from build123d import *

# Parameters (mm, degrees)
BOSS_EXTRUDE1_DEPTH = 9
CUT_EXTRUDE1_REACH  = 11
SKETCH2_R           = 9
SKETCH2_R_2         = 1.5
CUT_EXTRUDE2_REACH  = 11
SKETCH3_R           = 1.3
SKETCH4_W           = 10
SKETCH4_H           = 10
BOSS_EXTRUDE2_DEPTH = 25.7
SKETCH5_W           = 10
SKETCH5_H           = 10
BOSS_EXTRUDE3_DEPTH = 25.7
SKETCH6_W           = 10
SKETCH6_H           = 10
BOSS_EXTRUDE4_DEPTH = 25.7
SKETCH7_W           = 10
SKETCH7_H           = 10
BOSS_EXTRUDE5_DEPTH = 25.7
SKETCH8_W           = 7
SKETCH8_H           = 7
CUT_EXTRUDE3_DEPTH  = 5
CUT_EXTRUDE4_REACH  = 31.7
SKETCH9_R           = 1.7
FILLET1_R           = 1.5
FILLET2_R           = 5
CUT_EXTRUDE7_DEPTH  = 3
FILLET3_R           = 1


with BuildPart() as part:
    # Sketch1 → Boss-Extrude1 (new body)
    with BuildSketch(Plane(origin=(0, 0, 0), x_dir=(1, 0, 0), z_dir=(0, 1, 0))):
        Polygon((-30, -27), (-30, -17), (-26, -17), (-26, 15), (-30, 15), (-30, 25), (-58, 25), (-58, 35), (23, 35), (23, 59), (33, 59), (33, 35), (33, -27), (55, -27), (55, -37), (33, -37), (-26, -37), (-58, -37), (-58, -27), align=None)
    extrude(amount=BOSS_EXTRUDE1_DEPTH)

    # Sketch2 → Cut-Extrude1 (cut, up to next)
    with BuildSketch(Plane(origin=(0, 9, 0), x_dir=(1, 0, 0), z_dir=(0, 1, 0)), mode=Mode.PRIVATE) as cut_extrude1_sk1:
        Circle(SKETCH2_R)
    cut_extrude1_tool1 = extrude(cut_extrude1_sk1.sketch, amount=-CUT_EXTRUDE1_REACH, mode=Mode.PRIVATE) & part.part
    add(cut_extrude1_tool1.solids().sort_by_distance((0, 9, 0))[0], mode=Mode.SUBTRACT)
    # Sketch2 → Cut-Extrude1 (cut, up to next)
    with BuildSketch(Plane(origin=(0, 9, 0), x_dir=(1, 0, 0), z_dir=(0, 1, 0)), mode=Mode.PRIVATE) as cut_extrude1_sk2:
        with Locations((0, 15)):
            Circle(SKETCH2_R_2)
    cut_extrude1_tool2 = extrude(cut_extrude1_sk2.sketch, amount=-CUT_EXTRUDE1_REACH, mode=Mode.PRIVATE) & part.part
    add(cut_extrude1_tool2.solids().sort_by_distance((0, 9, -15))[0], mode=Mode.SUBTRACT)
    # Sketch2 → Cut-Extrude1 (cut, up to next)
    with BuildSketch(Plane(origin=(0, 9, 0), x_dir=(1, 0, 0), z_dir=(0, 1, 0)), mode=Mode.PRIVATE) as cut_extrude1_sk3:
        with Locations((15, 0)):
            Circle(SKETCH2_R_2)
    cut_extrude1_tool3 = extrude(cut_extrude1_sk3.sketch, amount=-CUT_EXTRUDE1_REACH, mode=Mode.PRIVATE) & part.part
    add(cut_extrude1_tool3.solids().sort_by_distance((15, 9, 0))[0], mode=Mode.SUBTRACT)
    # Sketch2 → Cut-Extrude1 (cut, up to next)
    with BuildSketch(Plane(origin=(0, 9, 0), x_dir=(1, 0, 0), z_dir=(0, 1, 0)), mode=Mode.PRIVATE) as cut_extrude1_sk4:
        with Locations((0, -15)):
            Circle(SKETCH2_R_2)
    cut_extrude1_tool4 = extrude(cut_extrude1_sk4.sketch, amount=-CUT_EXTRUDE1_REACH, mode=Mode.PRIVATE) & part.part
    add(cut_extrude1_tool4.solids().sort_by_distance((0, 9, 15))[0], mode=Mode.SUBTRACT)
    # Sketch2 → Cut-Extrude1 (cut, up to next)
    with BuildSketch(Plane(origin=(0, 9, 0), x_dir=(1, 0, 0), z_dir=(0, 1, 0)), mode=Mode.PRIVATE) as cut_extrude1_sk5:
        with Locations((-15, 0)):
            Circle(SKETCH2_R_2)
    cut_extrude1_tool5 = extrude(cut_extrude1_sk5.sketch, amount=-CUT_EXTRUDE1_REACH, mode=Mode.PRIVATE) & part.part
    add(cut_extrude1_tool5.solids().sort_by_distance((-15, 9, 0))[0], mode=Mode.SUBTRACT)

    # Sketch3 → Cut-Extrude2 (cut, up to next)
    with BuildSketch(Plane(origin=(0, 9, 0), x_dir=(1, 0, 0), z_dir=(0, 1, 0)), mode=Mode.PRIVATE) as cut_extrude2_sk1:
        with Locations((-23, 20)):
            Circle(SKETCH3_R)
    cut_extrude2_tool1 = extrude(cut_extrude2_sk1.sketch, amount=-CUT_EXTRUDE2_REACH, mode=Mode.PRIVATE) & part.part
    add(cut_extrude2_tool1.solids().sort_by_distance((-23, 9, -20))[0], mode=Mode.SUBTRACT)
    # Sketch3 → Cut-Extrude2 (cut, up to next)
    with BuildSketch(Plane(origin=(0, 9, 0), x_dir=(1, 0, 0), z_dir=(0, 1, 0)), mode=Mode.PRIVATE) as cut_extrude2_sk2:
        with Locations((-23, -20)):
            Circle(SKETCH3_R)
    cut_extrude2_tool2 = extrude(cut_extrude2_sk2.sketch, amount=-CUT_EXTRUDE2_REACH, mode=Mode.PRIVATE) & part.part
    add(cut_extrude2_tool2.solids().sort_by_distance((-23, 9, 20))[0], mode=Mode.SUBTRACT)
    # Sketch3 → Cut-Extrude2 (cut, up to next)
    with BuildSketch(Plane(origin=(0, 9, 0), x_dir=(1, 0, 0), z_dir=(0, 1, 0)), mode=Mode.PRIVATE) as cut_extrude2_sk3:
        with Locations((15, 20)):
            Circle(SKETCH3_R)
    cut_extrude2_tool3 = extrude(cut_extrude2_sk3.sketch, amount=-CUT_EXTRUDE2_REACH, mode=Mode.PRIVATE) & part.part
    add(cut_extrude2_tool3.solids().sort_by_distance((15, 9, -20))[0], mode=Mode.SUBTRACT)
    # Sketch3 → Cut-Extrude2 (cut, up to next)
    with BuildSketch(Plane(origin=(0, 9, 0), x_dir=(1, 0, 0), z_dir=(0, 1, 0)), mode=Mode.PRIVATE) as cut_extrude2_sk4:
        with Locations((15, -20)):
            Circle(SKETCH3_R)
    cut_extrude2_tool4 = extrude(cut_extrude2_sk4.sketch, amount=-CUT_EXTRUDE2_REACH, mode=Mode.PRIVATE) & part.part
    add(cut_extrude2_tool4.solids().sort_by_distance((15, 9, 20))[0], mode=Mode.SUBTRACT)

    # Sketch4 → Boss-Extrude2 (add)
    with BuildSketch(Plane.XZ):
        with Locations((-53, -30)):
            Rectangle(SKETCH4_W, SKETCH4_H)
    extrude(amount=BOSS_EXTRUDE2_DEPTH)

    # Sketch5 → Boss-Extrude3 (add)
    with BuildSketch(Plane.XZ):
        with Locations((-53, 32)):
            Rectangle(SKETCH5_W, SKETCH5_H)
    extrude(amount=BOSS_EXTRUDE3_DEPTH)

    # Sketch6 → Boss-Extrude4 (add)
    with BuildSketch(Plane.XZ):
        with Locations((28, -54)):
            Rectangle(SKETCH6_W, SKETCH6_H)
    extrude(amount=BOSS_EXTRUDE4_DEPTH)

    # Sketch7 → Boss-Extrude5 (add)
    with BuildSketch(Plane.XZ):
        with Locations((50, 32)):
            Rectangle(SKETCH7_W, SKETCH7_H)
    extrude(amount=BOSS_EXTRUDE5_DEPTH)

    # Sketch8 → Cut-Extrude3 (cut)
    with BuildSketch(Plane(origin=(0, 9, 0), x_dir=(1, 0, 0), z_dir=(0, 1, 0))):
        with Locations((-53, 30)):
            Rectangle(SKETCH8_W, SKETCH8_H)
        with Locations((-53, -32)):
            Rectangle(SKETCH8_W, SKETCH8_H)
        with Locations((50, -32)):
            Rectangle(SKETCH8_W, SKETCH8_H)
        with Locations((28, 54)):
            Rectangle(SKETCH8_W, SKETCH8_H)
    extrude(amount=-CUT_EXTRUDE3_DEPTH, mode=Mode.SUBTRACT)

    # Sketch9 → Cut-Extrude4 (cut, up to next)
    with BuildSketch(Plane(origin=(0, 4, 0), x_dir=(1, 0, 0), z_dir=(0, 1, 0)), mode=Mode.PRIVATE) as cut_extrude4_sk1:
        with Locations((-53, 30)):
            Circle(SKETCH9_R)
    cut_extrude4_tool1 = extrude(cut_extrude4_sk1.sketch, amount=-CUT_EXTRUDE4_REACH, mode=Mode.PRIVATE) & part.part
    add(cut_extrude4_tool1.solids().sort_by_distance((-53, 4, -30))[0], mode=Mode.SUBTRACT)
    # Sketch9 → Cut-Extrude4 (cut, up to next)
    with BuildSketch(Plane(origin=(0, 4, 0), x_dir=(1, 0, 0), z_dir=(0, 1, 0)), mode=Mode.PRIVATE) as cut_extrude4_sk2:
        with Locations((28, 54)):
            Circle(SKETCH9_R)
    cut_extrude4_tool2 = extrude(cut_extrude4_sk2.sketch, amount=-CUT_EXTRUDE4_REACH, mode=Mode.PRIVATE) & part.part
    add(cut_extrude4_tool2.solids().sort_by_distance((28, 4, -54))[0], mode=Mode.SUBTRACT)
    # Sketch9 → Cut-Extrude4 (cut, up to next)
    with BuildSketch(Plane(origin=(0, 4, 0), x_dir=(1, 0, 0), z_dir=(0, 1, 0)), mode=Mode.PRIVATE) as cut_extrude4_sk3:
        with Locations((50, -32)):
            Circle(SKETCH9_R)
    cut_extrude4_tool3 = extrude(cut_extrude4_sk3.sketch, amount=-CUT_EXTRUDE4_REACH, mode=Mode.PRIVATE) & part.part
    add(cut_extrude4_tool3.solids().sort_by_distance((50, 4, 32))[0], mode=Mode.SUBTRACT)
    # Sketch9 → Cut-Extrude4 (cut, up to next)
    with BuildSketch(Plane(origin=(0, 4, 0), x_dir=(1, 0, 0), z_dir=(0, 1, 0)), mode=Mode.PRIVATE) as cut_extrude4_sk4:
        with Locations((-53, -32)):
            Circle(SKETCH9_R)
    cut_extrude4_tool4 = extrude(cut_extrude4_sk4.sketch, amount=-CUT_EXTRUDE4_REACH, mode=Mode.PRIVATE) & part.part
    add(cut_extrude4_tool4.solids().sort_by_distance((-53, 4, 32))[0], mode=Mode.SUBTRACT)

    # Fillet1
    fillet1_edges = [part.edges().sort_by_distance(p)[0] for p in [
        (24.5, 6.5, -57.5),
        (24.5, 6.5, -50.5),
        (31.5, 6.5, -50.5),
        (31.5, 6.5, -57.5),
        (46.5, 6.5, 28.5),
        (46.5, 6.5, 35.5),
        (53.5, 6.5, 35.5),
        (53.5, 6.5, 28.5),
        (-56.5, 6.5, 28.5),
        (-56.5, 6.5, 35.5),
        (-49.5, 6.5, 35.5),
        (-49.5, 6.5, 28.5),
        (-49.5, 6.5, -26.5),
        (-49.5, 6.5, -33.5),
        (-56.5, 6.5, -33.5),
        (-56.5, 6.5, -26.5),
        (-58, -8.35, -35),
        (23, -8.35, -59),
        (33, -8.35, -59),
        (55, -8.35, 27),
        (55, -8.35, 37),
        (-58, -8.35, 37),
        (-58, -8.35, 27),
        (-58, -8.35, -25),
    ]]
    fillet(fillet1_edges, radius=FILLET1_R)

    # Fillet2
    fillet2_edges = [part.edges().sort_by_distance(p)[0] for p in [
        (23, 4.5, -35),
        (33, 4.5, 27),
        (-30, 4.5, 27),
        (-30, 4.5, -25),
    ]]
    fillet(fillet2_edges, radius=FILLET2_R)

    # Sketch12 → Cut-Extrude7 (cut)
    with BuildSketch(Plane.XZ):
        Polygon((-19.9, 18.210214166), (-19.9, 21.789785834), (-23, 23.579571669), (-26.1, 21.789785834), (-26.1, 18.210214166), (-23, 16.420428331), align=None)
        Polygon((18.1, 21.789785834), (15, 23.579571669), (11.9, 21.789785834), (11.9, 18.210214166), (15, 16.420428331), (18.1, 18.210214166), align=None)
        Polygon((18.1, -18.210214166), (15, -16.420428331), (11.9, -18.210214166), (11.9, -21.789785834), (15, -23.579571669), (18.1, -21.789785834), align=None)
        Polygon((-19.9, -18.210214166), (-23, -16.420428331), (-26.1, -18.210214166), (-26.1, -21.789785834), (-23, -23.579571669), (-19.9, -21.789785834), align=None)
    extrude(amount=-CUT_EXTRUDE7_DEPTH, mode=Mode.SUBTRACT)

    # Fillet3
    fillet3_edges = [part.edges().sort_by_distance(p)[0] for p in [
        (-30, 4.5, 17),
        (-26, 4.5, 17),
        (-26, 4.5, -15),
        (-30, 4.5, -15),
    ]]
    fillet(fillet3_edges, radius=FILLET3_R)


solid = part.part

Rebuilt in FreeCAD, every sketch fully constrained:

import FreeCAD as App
import Part
import Sketcher
from FreeCAD import Vector
Q = App.Units.Quantity


def edges_at(feature, points):
    """Names of the edges that pass closest to the given points."""
    edges = feature.Shape.Edges
    near = lambda p: min(range(len(edges)), key=lambda i: edges[i].distToShape(Part.Vertex(*p))[0])
    return sorted({f"Edge{near(p) + 1}" for p in points})


def add_polygon(sketch, points):
    """Adds a closed chain of lines whose ends are joined by coincident constraints."""
    first, n = sketch.GeometryCount, len(points)
    for a, b in zip(points, points[1:] + points[:1]):
        sketch.addGeometry(Part.LineSegment(App.Vector(*a, 0), App.Vector(*b, 0)), False)
    for i in range(n):
        sketch.addConstraint(Sketcher.Constraint("Coincident", first + i, 2, first + (i + 1) % n, 1))

doc = App.newDocument("Part")
body = doc.addObject("PartDesign::Body", "Body")

sketch1 = body.newObject("Sketcher::SketchObject", "Sketch")
sketch1.AttachmentSupport = (doc.getObject("XZ_Plane"), [""])
sketch1.MapMode = "FlatFace"
add_polygon(sketch1, [(-30, 17), (-30, 27), (-58, 27), (-58, 37), (55, 37), (55, 27), (33, 27), (33, -59), (23, -59), (23, -35), (-58, -35), (-58, -25), (-30, -25), (-30, -15), (-26, -15), (-26, 17)])
sketch1.addConstraint([
    Sketcher.Constraint("Vertical", 0),
    Sketcher.Constraint("Horizontal", 1),
    Sketcher.Constraint("Vertical", 2),
    Sketcher.Constraint("Horizontal", 3),
    Sketcher.Constraint("Vertical", 4),
    Sketcher.Constraint("Horizontal", 5),
    Sketcher.Constraint("Vertical", 6),
    Sketcher.Constraint("Horizontal", 7),
    Sketcher.Constraint("Vertical", 8),
    Sketcher.Constraint("Horizontal", 9),
    Sketcher.Constraint("Vertical", 10),
    Sketcher.Constraint("Horizontal", 11),
    Sketcher.Constraint("Vertical", 12),
    Sketcher.Constraint("Horizontal", 13),
    Sketcher.Constraint("Vertical", 14),
    Sketcher.Constraint("Horizontal", 15),
    Sketcher.Constraint("Horizontal", 1, 2, 4, 2),
    Sketcher.Constraint("Vertical", 2, 2, 9, 2),
    Sketcher.Constraint("Vertical", 0, 2, 11, 2),
    Sketcher.Constraint("Equal", 7, 0),
    Sketcher.Constraint("Equal", 0, 2),
    Sketcher.Constraint("Equal", 4, 10),
    Sketcher.Constraint("Equal", 10, 12),
    Sketcher.Constraint("DistanceX", 1, 2, 1, 1, Q("28 mm")),
    Sketcher.Constraint("DistanceX", 3, 1, 3, 2, Q("113 mm")),
    Sketcher.Constraint("DistanceX", 5, 2, 5, 1, Q("22 mm")),
    Sketcher.Constraint("DistanceX", 7, 2, 7, 1, Q("10 mm")),
    Sketcher.Constraint("DistanceX", 13, 1, 13, 2, Q("4 mm")),
    Sketcher.Constraint("DistanceY", 6, 2, 6, 1, Q("86 mm")),
    Sketcher.Constraint("DistanceY", 8, 1, 8, 2, Q("24 mm")),
    Sketcher.Constraint("DistanceX", 0, 2, -1, 1, Q("30 mm")),
    Sketcher.Constraint("DistanceY", -1, 1, 0, 2, Q("27 mm")),
])
pad1 = body.newObject("PartDesign::Pad", "Pad")
pad1.Profile = sketch1
pad1.Length = 9
pad1.Reversed = True

sketch2 = body.newObject("Sketcher::SketchObject", "Sketch001")
sketch2.AttachmentSupport = (doc.getObject("XZ_Plane"), [""])
sketch2.MapMode = "FlatFace"
sketch2.AttachmentOffset = App.Placement(Vector(0, 0, -9), App.Rotation())
sketch2.addGeometry(Part.Circle(Vector(0, 0, 0), Vector(0, 0, 1), 9), False)
sketch2.addConstraint([
    Sketcher.Constraint("Coincident", 0, 3, -1, 1),
    Sketcher.Constraint("Diameter", 0, Q("18 mm")),
])
pocket1 = body.newObject("PartDesign::Pocket", "Pocket")
pocket1.Profile = sketch2
pocket1.Type = "UpToFirst"
pocket1.Reversed = True

sketch3 = body.newObject("Sketcher::SketchObject", "Sketch002")
sketch3.AttachmentSupport = (doc.getObject("XZ_Plane"), [""])
sketch3.MapMode = "FlatFace"
sketch3.AttachmentOffset = App.Placement(Vector(0, 0, -9), App.Rotation())
sketch3.addGeometry(Part.Circle(Vector(0, -15, 0), Vector(0, 0, 1), 1.5), False)
sketch3.addConstraint([
    Sketcher.Constraint("PointOnObject", 0, 3, -2),
    Sketcher.Constraint("Diameter", 0, Q("3 mm")),
    Sketcher.Constraint("DistanceY", 0, 3, -1, 1, Q("15 mm")),
])
pocket2 = body.newObject("PartDesign::Pocket", "Pocket001")
pocket2.Profile = sketch3
pocket2.Type = "UpToFirst"
pocket2.Reversed = True

sketch4 = body.newObject("Sketcher::SketchObject", "Sketch003")
sketch4.AttachmentSupport = (doc.getObject("XZ_Plane"), [""])
sketch4.MapMode = "FlatFace"
sketch4.AttachmentOffset = App.Placement(Vector(0, 0, -9), App.Rotation())
sketch4.addGeometry(Part.Circle(Vector(15, 0, 0), Vector(0, 0, 1), 1.5), False)
sketch4.addConstraint([
    Sketcher.Constraint("PointOnObject", 0, 3, -1),
    Sketcher.Constraint("Diameter", 0, Q("3 mm")),
    Sketcher.Constraint("DistanceX", -1, 1, 0, 3, Q("15 mm")),
])
pocket3 = body.newObject("PartDesign::Pocket", "Pocket002")
pocket3.Profile = sketch4
pocket3.Type = "UpToFirst"
pocket3.Reversed = True

sketch5 = body.newObject("Sketcher::SketchObject", "Sketch004")
sketch5.AttachmentSupport = (doc.getObject("XZ_Plane"), [""])
sketch5.MapMode = "FlatFace"
sketch5.AttachmentOffset = App.Placement(Vector(0, 0, -9), App.Rotation())
sketch5.addGeometry(Part.Circle(Vector(0, 15, 0), Vector(0, 0, 1), 1.5), False)
sketch5.addConstraint([
    Sketcher.Constraint("PointOnObject", 0, 3, -2),
    Sketcher.Constraint("Diameter", 0, Q("3 mm")),
    Sketcher.Constraint("DistanceY", -1, 1, 0, 3, Q("15 mm")),
])
pocket4 = body.newObject("PartDesign::Pocket", "Pocket003")
pocket4.Profile = sketch5
pocket4.Type = "UpToFirst"
pocket4.Reversed = True

sketch6 = body.newObject("Sketcher::SketchObject", "Sketch005")
sketch6.AttachmentSupport = (doc.getObject("XZ_Plane"), [""])
sketch6.MapMode = "FlatFace"
sketch6.AttachmentOffset = App.Placement(Vector(0, 0, -9), App.Rotation())
sketch6.addGeometry(Part.Circle(Vector(-15, 0, 0), Vector(0, 0, 1), 1.5), False)
sketch6.addConstraint([
    Sketcher.Constraint("PointOnObject", 0, 3, -1),
    Sketcher.Constraint("Diameter", 0, Q("3 mm")),
    Sketcher.Constraint("DistanceX", 0, 3, -1, 1, Q("15 mm")),
])
pocket5 = body.newObject("PartDesign::Pocket", "Pocket004")
pocket5.Profile = sketch6
pocket5.Type = "UpToFirst"
pocket5.Reversed = True

sketch7 = body.newObject("Sketcher::SketchObject", "Sketch006")
sketch7.AttachmentSupport = (doc.getObject("XZ_Plane"), [""])
sketch7.MapMode = "FlatFace"
sketch7.AttachmentOffset = App.Placement(Vector(0, 0, -9), App.Rotation())
sketch7.addGeometry(Part.Circle(Vector(-23, -20, 0), Vector(0, 0, 1), 1.3), False)
sketch7.addConstraint([
    Sketcher.Constraint("Diameter", 0, Q("2.6 mm")),
    Sketcher.Constraint("DistanceX", 0, 3, -1, 1, Q("23 mm")),
    Sketcher.Constraint("DistanceY", 0, 3, -1, 1, Q("20 mm")),
])
pocket6 = body.newObject("PartDesign::Pocket", "Pocket005")
pocket6.Profile = sketch7
pocket6.Type = "UpToFirst"
pocket6.Reversed = True

sketch8 = body.newObject("Sketcher::SketchObject", "Sketch007")
sketch8.AttachmentSupport = (doc.getObject("XZ_Plane"), [""])
sketch8.MapMode = "FlatFace"
sketch8.AttachmentOffset = App.Placement(Vector(0, 0, -9), App.Rotation())
sketch8.addGeometry(Part.Circle(Vector(-23, 20, 0), Vector(0, 0, 1), 1.3), False)
sketch8.addConstraint([
    Sketcher.Constraint("Diameter", 0, Q("2.6 mm")),
    Sketcher.Constraint("DistanceX", 0, 3, -1, 1, Q("23 mm")),
    Sketcher.Constraint("DistanceY", -1, 1, 0, 3, Q("20 mm")),
])
pocket7 = body.newObject("PartDesign::Pocket", "Pocket006")
pocket7.Profile = sketch8
pocket7.Type = "UpToFirst"
pocket7.Reversed = True

sketch9 = body.newObject("Sketcher::SketchObject", "Sketch008")
sketch9.AttachmentSupport = (doc.getObject("XZ_Plane"), [""])
sketch9.MapMode = "FlatFace"
sketch9.AttachmentOffset = App.Placement(Vector(0, 0, -9), App.Rotation())
sketch9.addGeometry(Part.Circle(Vector(15, -20, 0), Vector(0, 0, 1), 1.3), False)
sketch9.addConstraint([
    Sketcher.Constraint("Diameter", 0, Q("2.6 mm")),
    Sketcher.Constraint("DistanceX", -1, 1, 0, 3, Q("15 mm")),
    Sketcher.Constraint("DistanceY", 0, 3, -1, 1, Q("20 mm")),
])
pocket8 = body.newObject("PartDesign::Pocket", "Pocket007")
pocket8.Profile = sketch9
pocket8.Type = "UpToFirst"
pocket8.Reversed = True

sketch10 = body.newObject("Sketcher::SketchObject", "Sketch009")
sketch10.AttachmentSupport = (doc.getObject("XZ_Plane"), [""])
sketch10.MapMode = "FlatFace"
sketch10.AttachmentOffset = App.Placement(Vector(0, 0, -9), App.Rotation())
sketch10.addGeometry(Part.Circle(Vector(15, 20, 0), Vector(0, 0, 1), 1.3), False)
sketch10.addConstraint([
    Sketcher.Constraint("Diameter", 0, Q("2.6 mm")),
    Sketcher.Constraint("DistanceX", -1, 1, 0, 3, Q("15 mm")),
    Sketcher.Constraint("DistanceY", -1, 1, 0, 3, Q("20 mm")),
])
pocket9 = body.newObject("PartDesign::Pocket", "Pocket008")
pocket9.Profile = sketch10
pocket9.Type = "UpToFirst"
pocket9.Reversed = True

sketch11 = body.newObject("Sketcher::SketchObject", "Sketch010")
sketch11.AttachmentSupport = (doc.getObject("XZ_Plane"), [""])
sketch11.MapMode = "FlatFace"
add_polygon(sketch11, [(-58, -25), (-58, -35), (-48, -35), (-48, -25)])
sketch11.addConstraint([
    Sketcher.Constraint("Vertical", 0),
    Sketcher.Constraint("Horizontal", 1),
    Sketcher.Constraint("Vertical", 2),
    Sketcher.Constraint("Horizontal", 3),
    Sketcher.Constraint("Equal", 3, 0),
    Sketcher.Constraint("DistanceX", 1, 1, 1, 2, Q("10 mm")),
    Sketcher.Constraint("DistanceX", 0, 2, -1, 1, Q("58 mm")),
    Sketcher.Constraint("DistanceY", 0, 2, -1, 1, Q("35 mm")),
])
pad2 = body.newObject("PartDesign::Pad", "Pad001")
pad2.Profile = sketch11
pad2.Length = 25.7

sketch12 = body.newObject("Sketcher::SketchObject", "Sketch011")
sketch12.AttachmentSupport = (doc.getObject("XZ_Plane"), [""])
sketch12.MapMode = "FlatFace"
add_polygon(sketch12, [(-58, 37), (-58, 27), (-48, 27), (-48, 37)])
sketch12.addConstraint([
    Sketcher.Constraint("Vertical", 0),
    Sketcher.Constraint("Horizontal", 1),
    Sketcher.Constraint("Vertical", 2),
    Sketcher.Constraint("Horizontal", 3),
    Sketcher.Constraint("Equal", 3, 0),
    Sketcher.Constraint("DistanceX", 1, 1, 1, 2, Q("10 mm")),
    Sketcher.Constraint("DistanceX", 0, 2, -1, 1, Q("58 mm")),
    Sketcher.Constraint("DistanceY", -1, 1, 0, 2, Q("27 mm")),
])
pad3 = body.newObject("PartDesign::Pad", "Pad002")
pad3.Profile = sketch12
pad3.Length = 25.7

sketch13 = body.newObject("Sketcher::SketchObject", "Sketch012")
sketch13.AttachmentSupport = (doc.getObject("XZ_Plane"), [""])
sketch13.MapMode = "FlatFace"
add_polygon(sketch13, [(23, -49), (23, -59), (33, -59), (33, -49)])
sketch13.addConstraint([
    Sketcher.Constraint("Vertical", 0),
    Sketcher.Constraint("Horizontal", 1),
    Sketcher.Constraint("Vertical", 2),
    Sketcher.Constraint("Horizontal", 3),
    Sketcher.Constraint("Equal", 3, 0),
    Sketcher.Constraint("DistanceX", 1, 1, 1, 2, Q("10 mm")),
    Sketcher.Constraint("DistanceX", -1, 1, 0, 2, Q("23 mm")),
    Sketcher.Constraint("DistanceY", 0, 2, -1, 1, Q("59 mm")),
])
pad4 = body.newObject("PartDesign::Pad", "Pad003")
pad4.Profile = sketch13
pad4.Length = 25.7

sketch14 = body.newObject("Sketcher::SketchObject", "Sketch013")
sketch14.AttachmentSupport = (doc.getObject("XZ_Plane"), [""])
sketch14.MapMode = "FlatFace"
add_polygon(sketch14, [(45, 37), (45, 27), (55, 27), (55, 37)])
sketch14.addConstraint([
    Sketcher.Constraint("Vertical", 0),
    Sketcher.Constraint("Horizontal", 1),
    Sketcher.Constraint("Vertical", 2),
    Sketcher.Constraint("Horizontal", 3),
    Sketcher.Constraint("Equal", 3, 0),
    Sketcher.Constraint("DistanceX", 1, 1, 1, 2, Q("10 mm")),
    Sketcher.Constraint("DistanceX", -1, 1, 0, 2, Q("45 mm")),
    Sketcher.Constraint("DistanceY", -1, 1, 0, 2, Q("27 mm")),
])
pad5 = body.newObject("PartDesign::Pad", "Pad004")
pad5.Profile = sketch14
pad5.Length = 25.7

sketch15 = body.newObject("Sketcher::SketchObject", "Sketch014")
sketch15.AttachmentSupport = (doc.getObject("XZ_Plane"), [""])
sketch15.MapMode = "FlatFace"
sketch15.AttachmentOffset = App.Placement(Vector(0, 0, -9), App.Rotation())
add_polygon(sketch15, [(-56.5, -33.5), (-56.5, -26.5), (-49.5, -26.5), (-49.5, -33.5)])
add_polygon(sketch15, [(-56.5, 28.5), (-56.5, 35.5), (-49.5, 35.5), (-49.5, 28.5)])
add_polygon(sketch15, [(46.5, 28.5), (46.5, 35.5), (53.5, 35.5), (53.5, 28.5)])
add_polygon(sketch15, [(24.5, -57.5), (24.5, -50.5), (31.5, -50.5), (31.5, -57.5)])
sketch15.addConstraint([
    Sketcher.Constraint("Vertical", 0),
    Sketcher.Constraint("Horizontal", 1),
    Sketcher.Constraint("Vertical", 2),
    Sketcher.Constraint("Horizontal", 3),
    Sketcher.Constraint("Vertical", 4),
    Sketcher.Constraint("Horizontal", 5),
    Sketcher.Constraint("Vertical", 6),
    Sketcher.Constraint("Horizontal", 7),
    Sketcher.Constraint("Vertical", 8),
    Sketcher.Constraint("Horizontal", 9),
    Sketcher.Constraint("Vertical", 10),
    Sketcher.Constraint("Horizontal", 11),
    Sketcher.Constraint("Vertical", 12),
    Sketcher.Constraint("Horizontal", 13),
    Sketcher.Constraint("Vertical", 14),
    Sketcher.Constraint("Horizontal", 15),
    Sketcher.Constraint("Horizontal", 5, 2, 8, 2),
    Sketcher.Constraint("Horizontal", 7, 2, 10, 2),
    Sketcher.Constraint("Vertical", 3, 2, 4, 2),
    Sketcher.Constraint("Vertical", 2, 2, 5, 2),
    Sketcher.Constraint("Equal", 7, 9),
    Sketcher.Constraint("Equal", 11, 13),
    Sketcher.Constraint("Equal", 15, 0),
    Sketcher.Constraint("Equal", 2, 4),
    Sketcher.Constraint("Equal", 10, 12),
    Sketcher.Constraint("DistanceX", 1, 1, 1, 2, Q("7 mm")),
    Sketcher.Constraint("DistanceY", 0, 2, 4, 2, Q("62 mm")),
    Sketcher.Constraint("DistanceX", 5, 2, 8, 2, Q("96 mm")),
    Sketcher.Constraint("DistanceX", 2, 2, 12, 2, Q("74 mm")),
    Sketcher.Constraint("DistanceY", 12, 2, 2, 2, Q("17 mm")),
    Sketcher.Constraint("DistanceX", 0, 2, -1, 1, Q("56.5 mm")),
    Sketcher.Constraint("DistanceY", 0, 2, -1, 1, Q("26.5 mm")),
])
pocket10 = body.newObject("PartDesign::Pocket", "Pocket009")
pocket10.Profile = sketch15
pocket10.Length = 5
pocket10.Reversed = True

sketch16 = body.newObject("Sketcher::SketchObject", "Sketch015")
sketch16.AttachmentSupport = (doc.getObject("XZ_Plane"), [""])
sketch16.MapMode = "FlatFace"
sketch16.AttachmentOffset = App.Placement(Vector(0, 0, -4), App.Rotation())
sketch16.addGeometry(Part.Circle(Vector(-53, -30, 0), Vector(0, 0, 1), 1.7), False)
sketch16.addConstraint([
    Sketcher.Constraint("Diameter", 0, Q("3.4 mm")),
    Sketcher.Constraint("DistanceX", 0, 3, -1, 1, Q("53 mm")),
    Sketcher.Constraint("DistanceY", 0, 3, -1, 1, Q("30 mm")),
])
pocket11 = body.newObject("PartDesign::Pocket", "Pocket010")
pocket11.Profile = sketch16
pocket11.Type = "UpToFirst"
pocket11.Reversed = True

sketch17 = body.newObject("Sketcher::SketchObject", "Sketch016")
sketch17.AttachmentSupport = (doc.getObject("XZ_Plane"), [""])
sketch17.MapMode = "FlatFace"
sketch17.AttachmentOffset = App.Placement(Vector(0, 0, -4), App.Rotation())
sketch17.addGeometry(Part.Circle(Vector(28, -54, 0), Vector(0, 0, 1), 1.7), False)
sketch17.addConstraint([
    Sketcher.Constraint("Diameter", 0, Q("3.4 mm")),
    Sketcher.Constraint("DistanceX", -1, 1, 0, 3, Q("28 mm")),
    Sketcher.Constraint("DistanceY", 0, 3, -1, 1, Q("54 mm")),
])
pocket12 = body.newObject("PartDesign::Pocket", "Pocket011")
pocket12.Profile = sketch17
pocket12.Type = "UpToFirst"
pocket12.Reversed = True

sketch18 = body.newObject("Sketcher::SketchObject", "Sketch017")
sketch18.AttachmentSupport = (doc.getObject("XZ_Plane"), [""])
sketch18.MapMode = "FlatFace"
sketch18.AttachmentOffset = App.Placement(Vector(0, 0, -4), App.Rotation())
sketch18.addGeometry(Part.Circle(Vector(50, 32, 0), Vector(0, 0, 1), 1.7), False)
sketch18.addConstraint([
    Sketcher.Constraint("Diameter", 0, Q("3.4 mm")),
    Sketcher.Constraint("DistanceX", -1, 1, 0, 3, Q("50 mm")),
    Sketcher.Constraint("DistanceY", -1, 1, 0, 3, Q("32 mm")),
])
pocket13 = body.newObject("PartDesign::Pocket", "Pocket012")
pocket13.Profile = sketch18
pocket13.Type = "UpToFirst"
pocket13.Reversed = True

sketch19 = body.newObject("Sketcher::SketchObject", "Sketch018")
sketch19.AttachmentSupport = (doc.getObject("XZ_Plane"), [""])
sketch19.MapMode = "FlatFace"
sketch19.AttachmentOffset = App.Placement(Vector(0, 0, -4), App.Rotation())
sketch19.addGeometry(Part.Circle(Vector(-53, 32, 0), Vector(0, 0, 1), 1.7), False)
sketch19.addConstraint([
    Sketcher.Constraint("Diameter", 0, Q("3.4 mm")),
    Sketcher.Constraint("DistanceX", 0, 3, -1, 1, Q("53 mm")),
    Sketcher.Constraint("DistanceY", -1, 1, 0, 3, Q("32 mm")),
])
pocket14 = body.newObject("PartDesign::Pocket", "Pocket013")
pocket14.Profile = sketch19
pocket14.Type = "UpToFirst"
pocket14.Reversed = True
doc.recompute()

fillet = body.newObject("PartDesign::Fillet", "Fillet")
fillet.Base = (pocket14, edges_at(pocket14, [
    (24.5, 6.5, -57.5),
    (24.5, 6.5, -50.5),
    (31.5, 6.5, -50.5),
    (31.5, 6.5, -57.5),
    (46.5, 6.5, 28.5),
    (46.5, 6.5, 35.5),
    (53.5, 6.5, 35.5),
    (53.5, 6.5, 28.5),
    (-56.5, 6.5, 28.5),
    (-56.5, 6.5, 35.5),
    (-49.5, 6.5, 35.5),
    (-49.5, 6.5, 28.5),
    (-49.5, 6.5, -26.5),
    (-49.5, 6.5, -33.5),
    (-56.5, 6.5, -33.5),
    (-56.5, 6.5, -26.5),
    (-58, -8.35, -35),
    (23, -8.35, -59),
    (33, -8.35, -59),
    (55, -8.35, 27),
    (55, -8.35, 37),
    (-58, -8.35, 37),
    (-58, -8.35, 27),
    (-58, -8.35, -25),
]))
fillet.Radius = 1.5
doc.recompute()

fillet2 = body.newObject("PartDesign::Fillet", "Fillet001")
fillet2.Base = (fillet, edges_at(fillet, [
    (23, 4.5, -35),
    (33, 4.5, 27),
    (-30, 4.5, 27),
    (-30, 4.5, -25),
]))
fillet2.Radius = 5

sketch20 = body.newObject("Sketcher::SketchObject", "Sketch019")
sketch20.AttachmentSupport = (doc.getObject("XZ_Plane"), [""])
sketch20.MapMode = "FlatFace"
add_polygon(sketch20, [(-19.9, 18.210214), (-19.9, 21.789786), (-23, 23.579572), (-26.1, 21.789786), (-26.1, 18.210214), (-23, 16.420428)])
add_polygon(sketch20, [(18.1, 21.789786), (15, 23.579572), (11.9, 21.789786), (11.9, 18.210214), (15, 16.420428), (18.1, 18.210214)])
add_polygon(sketch20, [(18.1, -18.210214), (15, -16.420428), (11.9, -18.210214), (11.9, -21.789786), (15, -23.579572), (18.1, -21.789786)])
add_polygon(sketch20, [(-19.9, -18.210214), (-23, -16.420428), (-26.1, -18.210214), (-26.1, -21.789786), (-23, -23.579572), (-19.9, -21.789786)])
sketch20.addConstraint([
    Sketcher.Constraint("Vertical", 0),
    Sketcher.Constraint("Vertical", 3),
    Sketcher.Constraint("Vertical", 8),
    Sketcher.Constraint("Vertical", 11),
    Sketcher.Constraint("Vertical", 14),
    Sketcher.Constraint("Vertical", 17),
    Sketcher.Constraint("Vertical", 20),
    Sketcher.Constraint("Vertical", 23),
    Sketcher.Constraint("Symmetric", 9, 2, 12, 2, -1),
    Sketcher.Constraint("Symmetric", 8, 2, 13, 2, -1),
    Sketcher.Constraint("Symmetric", 6, 2, 15, 2, -1),
    Sketcher.Constraint("Symmetric", 11, 2, 16, 2, -1),
    Sketcher.Constraint("Symmetric", 4, 2, 18, 2, -1),
    Sketcher.Constraint("Symmetric", 3, 2, 19, 2, -1),
    Sketcher.Constraint("Symmetric", 1, 2, 21, 2, -1),
    Sketcher.Constraint("Symmetric", 0, 2, 22, 2, -1),
    Sketcher.Constraint("Parallel", 1, 4),
    Sketcher.Constraint("Parallel", 2, 5),
    Sketcher.Constraint("Parallel", 4, 6),
    Sketcher.Constraint("Parallel", 5, 7),
    Sketcher.Constraint("Parallel", 6, 9),
    Sketcher.Constraint("Parallel", 7, 10),
    Sketcher.Constraint("Parallel", 9, 12),
    Sketcher.Constraint("Parallel", 10, 13),
    Sketcher.Constraint("Parallel", 12, 15),
    Sketcher.Constraint("Parallel", 15, 18),
    Sketcher.Constraint("Parallel", 18, 21),
    Sketcher.Constraint("Horizontal", 0, 2, 2, 2),
    Sketcher.Constraint("Horizontal", 3, 2, 5, 2),
    Sketcher.Constraint("Horizontal", 1, 2, 6, 2),
    Sketcher.Constraint("Horizontal", 2, 2, 7, 2),
    Sketcher.Constraint("Horizontal", 5, 2, 8, 2),
    Sketcher.Constraint("Horizontal", 4, 2, 9, 2),
    Sketcher.Constraint("Horizontal", 8, 2, 10, 2),
    Sketcher.Constraint("Angle", 1, Q("150 deg")),
    Sketcher.Constraint("DistanceX", 1, 2, -1, 1, Q("23 mm")),
    Sketcher.Constraint("DistanceX", -1, 1, 6, 2, Q("15 mm")),
    Sketcher.Constraint("DistanceY", 13, 2, 7, 2, Q("40 mm")),
    Sketcher.Constraint("DistanceX", 0, 2, -1, 1, Q("19.9 mm")),
    Sketcher.Constraint("DistanceY", 0, 1, 0, 2, Q("3.579572 mm")),
])
pocket15 = body.newObject("PartDesign::Pocket", "Pocket014")
pocket15.Profile = sketch20
pocket15.Length = 3
doc.recompute()

fillet3 = body.newObject("PartDesign::Fillet", "Fillet002")
fillet3.Base = (pocket15, edges_at(pocket15, [
    (-30, 4.5, 17),
    (-26, 4.5, 17),
    (-26, 4.5, -15),
    (-30, 4.5, -15),
]))
fillet3.Radius = 1

doc.recompute()
